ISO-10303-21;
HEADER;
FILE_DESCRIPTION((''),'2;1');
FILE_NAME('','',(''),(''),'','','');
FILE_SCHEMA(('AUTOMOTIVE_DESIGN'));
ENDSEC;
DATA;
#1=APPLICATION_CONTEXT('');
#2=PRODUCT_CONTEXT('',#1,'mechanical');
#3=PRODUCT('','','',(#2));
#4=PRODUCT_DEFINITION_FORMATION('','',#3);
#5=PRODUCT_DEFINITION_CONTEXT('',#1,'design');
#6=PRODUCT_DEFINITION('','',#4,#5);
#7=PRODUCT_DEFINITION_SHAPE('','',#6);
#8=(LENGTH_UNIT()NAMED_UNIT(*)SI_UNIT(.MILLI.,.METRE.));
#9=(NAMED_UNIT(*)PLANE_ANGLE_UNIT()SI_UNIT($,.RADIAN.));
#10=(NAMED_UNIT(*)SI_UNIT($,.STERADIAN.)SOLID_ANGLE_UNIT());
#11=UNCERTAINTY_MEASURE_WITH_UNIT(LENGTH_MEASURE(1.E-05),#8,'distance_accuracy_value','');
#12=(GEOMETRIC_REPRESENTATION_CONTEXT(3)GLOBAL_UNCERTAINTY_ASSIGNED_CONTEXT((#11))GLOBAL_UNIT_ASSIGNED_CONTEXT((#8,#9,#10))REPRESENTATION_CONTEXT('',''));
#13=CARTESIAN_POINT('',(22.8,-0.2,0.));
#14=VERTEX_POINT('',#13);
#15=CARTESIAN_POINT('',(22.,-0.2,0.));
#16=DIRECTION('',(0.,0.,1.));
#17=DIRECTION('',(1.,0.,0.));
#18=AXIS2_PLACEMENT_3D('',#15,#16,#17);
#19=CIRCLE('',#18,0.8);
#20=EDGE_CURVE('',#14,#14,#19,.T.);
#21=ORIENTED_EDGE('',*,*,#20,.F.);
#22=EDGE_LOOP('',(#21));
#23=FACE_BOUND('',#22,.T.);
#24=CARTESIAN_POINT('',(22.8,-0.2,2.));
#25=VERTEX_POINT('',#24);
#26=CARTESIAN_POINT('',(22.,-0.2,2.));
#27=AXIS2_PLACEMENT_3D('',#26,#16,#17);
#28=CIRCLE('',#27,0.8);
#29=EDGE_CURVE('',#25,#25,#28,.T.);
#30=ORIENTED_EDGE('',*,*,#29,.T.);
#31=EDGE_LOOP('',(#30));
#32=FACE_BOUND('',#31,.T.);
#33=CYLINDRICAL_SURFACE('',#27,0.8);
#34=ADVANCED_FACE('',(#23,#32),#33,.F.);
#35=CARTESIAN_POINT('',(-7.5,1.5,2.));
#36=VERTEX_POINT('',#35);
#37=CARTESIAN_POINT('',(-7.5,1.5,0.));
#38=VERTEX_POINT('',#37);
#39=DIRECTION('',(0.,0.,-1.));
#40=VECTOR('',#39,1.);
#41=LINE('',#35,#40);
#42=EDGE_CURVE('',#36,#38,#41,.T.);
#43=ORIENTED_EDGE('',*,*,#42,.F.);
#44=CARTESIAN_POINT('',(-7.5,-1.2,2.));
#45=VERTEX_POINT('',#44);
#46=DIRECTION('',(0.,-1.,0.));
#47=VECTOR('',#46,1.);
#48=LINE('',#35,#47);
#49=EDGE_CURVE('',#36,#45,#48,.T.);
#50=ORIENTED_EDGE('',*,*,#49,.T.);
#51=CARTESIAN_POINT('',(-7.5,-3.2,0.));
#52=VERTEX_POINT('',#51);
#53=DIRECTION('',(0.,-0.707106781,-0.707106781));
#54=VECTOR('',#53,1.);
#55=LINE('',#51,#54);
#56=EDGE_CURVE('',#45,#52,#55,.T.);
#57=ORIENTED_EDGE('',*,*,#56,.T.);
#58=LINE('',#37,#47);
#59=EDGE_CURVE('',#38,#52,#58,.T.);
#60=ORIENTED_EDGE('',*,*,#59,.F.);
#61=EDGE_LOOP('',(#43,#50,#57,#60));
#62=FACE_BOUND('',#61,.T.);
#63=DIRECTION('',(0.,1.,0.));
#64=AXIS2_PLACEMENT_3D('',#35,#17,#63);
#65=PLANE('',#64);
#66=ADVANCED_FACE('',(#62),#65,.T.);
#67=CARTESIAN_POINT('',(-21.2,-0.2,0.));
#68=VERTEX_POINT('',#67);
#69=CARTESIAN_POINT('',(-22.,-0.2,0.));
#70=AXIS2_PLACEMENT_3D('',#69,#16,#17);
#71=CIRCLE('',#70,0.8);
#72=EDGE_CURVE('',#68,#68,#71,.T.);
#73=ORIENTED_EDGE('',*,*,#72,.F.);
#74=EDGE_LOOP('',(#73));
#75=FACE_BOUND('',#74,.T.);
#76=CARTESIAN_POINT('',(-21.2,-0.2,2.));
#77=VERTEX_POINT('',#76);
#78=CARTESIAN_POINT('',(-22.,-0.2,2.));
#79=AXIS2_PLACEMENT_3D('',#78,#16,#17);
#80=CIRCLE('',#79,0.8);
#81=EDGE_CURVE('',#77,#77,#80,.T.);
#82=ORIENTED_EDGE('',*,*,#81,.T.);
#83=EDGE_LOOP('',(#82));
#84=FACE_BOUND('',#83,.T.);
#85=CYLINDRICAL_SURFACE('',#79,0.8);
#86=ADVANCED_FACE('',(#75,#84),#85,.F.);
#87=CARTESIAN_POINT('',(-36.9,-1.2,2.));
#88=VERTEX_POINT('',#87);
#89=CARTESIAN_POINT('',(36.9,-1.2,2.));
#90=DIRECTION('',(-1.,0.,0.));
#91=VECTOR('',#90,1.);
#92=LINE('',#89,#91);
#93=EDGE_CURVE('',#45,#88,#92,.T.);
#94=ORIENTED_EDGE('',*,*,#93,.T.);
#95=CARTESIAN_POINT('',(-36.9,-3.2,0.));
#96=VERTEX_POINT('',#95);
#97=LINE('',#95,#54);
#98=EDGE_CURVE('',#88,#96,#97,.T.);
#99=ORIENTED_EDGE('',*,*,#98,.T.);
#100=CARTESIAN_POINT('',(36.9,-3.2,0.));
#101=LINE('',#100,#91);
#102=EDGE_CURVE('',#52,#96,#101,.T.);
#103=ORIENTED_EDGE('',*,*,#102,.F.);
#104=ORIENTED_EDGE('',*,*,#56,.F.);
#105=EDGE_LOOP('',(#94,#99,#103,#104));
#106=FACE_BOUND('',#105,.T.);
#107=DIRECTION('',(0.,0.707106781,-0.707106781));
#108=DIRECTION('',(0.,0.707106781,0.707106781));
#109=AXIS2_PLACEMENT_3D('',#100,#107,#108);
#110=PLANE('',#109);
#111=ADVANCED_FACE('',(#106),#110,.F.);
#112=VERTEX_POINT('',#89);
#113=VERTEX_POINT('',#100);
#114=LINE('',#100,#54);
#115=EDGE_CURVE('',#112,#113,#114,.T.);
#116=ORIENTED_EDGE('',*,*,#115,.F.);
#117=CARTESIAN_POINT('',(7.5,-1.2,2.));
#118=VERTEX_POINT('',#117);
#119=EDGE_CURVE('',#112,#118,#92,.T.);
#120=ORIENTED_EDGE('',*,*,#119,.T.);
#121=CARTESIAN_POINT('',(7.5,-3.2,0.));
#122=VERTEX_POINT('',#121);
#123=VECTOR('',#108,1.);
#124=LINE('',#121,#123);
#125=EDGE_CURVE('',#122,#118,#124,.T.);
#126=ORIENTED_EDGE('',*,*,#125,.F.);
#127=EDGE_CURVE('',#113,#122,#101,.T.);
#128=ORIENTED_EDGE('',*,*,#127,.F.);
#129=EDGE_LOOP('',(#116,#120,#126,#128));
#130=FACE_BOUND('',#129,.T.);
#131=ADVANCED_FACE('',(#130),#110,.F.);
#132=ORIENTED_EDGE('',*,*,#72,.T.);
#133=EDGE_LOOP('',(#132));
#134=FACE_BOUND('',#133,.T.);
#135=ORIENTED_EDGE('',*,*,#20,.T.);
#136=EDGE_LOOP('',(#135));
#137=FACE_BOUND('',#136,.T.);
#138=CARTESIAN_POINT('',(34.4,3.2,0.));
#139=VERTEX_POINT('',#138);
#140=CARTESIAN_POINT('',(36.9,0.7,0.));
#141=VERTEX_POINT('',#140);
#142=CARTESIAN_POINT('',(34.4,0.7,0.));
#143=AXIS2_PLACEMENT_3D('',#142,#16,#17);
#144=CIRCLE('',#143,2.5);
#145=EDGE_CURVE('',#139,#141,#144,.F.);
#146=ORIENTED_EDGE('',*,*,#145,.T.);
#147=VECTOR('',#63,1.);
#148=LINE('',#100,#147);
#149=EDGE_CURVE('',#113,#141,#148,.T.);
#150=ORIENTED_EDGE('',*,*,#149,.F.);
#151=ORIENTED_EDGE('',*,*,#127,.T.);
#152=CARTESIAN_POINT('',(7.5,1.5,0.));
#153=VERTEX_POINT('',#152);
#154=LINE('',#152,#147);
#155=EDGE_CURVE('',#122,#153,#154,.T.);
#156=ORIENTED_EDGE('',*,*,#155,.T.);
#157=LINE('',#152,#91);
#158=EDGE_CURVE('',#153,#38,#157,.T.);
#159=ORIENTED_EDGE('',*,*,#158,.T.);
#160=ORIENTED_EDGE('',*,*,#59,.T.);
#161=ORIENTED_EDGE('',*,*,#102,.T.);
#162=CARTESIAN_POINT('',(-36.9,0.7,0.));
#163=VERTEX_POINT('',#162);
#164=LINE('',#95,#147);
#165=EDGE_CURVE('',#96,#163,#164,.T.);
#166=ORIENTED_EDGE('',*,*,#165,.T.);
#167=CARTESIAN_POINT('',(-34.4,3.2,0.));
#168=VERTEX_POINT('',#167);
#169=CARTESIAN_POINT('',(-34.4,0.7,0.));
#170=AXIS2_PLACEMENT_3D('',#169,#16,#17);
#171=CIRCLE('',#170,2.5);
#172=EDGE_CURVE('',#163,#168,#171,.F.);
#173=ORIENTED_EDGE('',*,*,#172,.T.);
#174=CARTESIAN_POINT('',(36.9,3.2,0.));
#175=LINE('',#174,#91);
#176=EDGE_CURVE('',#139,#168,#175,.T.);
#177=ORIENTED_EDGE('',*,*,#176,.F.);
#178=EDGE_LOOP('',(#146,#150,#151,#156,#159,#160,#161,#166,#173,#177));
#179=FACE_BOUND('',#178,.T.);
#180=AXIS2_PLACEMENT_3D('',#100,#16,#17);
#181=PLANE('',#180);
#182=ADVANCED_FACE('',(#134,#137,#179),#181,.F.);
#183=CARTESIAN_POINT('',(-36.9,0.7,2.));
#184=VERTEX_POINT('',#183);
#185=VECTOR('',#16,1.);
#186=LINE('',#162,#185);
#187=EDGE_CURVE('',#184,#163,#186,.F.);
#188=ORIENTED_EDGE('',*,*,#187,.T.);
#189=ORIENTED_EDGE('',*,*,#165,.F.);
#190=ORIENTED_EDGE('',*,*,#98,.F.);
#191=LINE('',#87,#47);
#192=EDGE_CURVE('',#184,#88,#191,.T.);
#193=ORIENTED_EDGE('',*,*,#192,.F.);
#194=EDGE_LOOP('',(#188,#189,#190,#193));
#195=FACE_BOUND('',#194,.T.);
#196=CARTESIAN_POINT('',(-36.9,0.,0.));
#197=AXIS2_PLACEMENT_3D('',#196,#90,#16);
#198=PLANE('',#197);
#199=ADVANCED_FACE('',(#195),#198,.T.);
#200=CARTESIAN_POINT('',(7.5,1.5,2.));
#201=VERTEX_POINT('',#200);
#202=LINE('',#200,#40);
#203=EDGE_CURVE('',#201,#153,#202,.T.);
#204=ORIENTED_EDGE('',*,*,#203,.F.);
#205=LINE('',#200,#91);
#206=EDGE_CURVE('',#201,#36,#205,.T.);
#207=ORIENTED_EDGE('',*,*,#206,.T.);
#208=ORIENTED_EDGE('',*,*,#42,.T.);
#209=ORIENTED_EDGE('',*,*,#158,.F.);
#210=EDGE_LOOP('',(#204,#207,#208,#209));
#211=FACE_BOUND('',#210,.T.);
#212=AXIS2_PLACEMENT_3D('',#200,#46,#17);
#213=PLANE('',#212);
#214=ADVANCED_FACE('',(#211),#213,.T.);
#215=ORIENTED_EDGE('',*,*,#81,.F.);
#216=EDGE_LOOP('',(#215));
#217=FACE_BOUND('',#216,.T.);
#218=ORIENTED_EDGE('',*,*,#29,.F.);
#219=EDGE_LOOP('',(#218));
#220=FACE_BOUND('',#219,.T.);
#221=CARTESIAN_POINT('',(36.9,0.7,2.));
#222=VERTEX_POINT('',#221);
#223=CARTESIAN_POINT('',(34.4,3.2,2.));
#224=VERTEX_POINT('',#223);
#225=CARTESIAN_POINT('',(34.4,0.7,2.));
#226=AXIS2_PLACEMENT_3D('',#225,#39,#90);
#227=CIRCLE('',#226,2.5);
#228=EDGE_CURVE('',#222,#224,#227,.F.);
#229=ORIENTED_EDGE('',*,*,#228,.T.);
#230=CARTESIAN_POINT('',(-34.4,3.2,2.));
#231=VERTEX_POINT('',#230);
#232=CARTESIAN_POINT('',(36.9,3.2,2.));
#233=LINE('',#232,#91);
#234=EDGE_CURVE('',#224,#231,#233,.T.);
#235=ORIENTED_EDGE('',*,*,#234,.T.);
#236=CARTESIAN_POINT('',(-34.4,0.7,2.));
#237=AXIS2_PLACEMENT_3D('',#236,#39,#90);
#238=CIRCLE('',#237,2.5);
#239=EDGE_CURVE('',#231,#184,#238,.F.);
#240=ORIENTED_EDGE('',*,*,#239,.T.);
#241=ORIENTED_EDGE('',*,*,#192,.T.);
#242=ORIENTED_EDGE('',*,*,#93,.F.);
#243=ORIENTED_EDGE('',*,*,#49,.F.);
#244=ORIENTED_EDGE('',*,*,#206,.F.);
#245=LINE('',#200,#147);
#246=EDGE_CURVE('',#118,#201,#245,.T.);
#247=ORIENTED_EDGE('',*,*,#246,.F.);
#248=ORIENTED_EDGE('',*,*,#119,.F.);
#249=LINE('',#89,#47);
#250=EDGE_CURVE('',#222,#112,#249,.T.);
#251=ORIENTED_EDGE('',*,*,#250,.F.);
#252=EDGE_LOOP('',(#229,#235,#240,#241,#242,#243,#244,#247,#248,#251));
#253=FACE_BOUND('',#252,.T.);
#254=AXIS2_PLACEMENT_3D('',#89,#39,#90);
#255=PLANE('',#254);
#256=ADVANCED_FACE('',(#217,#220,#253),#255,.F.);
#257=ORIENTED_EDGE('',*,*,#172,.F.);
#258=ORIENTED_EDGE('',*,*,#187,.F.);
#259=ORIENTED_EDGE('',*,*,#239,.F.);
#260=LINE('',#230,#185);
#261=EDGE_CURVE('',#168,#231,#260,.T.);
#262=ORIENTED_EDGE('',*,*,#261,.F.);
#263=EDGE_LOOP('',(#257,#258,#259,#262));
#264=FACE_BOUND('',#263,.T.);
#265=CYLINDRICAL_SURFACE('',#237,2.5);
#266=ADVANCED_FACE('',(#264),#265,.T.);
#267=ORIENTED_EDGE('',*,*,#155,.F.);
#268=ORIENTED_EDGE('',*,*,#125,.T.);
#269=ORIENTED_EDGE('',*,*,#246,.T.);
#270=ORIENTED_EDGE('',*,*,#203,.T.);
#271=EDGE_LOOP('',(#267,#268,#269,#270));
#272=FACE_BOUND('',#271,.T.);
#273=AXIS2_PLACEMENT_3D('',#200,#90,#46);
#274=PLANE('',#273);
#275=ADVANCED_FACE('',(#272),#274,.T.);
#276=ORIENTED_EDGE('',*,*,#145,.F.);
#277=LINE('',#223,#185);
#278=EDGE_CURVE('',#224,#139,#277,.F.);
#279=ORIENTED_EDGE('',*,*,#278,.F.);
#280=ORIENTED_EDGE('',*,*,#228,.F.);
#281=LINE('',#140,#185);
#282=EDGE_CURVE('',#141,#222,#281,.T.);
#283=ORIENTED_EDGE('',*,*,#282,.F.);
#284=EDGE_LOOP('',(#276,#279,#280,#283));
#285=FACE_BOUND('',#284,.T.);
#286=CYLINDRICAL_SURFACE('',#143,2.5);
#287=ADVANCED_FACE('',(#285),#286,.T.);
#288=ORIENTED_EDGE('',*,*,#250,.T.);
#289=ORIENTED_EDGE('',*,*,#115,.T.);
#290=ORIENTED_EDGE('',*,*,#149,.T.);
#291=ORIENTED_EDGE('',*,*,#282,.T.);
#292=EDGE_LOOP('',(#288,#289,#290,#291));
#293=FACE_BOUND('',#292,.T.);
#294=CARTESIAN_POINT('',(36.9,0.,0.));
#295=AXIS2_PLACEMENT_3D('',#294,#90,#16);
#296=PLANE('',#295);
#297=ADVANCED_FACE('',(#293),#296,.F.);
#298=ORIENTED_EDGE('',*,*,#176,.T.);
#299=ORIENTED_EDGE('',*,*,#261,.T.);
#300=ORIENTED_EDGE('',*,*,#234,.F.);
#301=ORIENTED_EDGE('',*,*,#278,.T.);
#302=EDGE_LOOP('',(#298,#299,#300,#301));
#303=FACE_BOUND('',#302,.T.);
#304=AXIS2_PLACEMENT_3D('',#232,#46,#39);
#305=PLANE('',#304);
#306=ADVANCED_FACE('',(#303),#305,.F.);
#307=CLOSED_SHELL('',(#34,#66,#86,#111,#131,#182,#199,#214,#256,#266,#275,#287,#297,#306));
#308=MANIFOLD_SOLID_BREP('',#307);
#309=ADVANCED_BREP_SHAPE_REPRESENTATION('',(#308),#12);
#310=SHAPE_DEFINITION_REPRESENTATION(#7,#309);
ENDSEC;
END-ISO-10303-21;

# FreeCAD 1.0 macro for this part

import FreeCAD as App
import Part
import Sketcher
Q = App.Units.Quantity


def edges_at(feature, points):
    """Names of the edges that pass closest to the given points."""
    edges = feature.Shape.Edges
    near = lambda p: min(range(len(edges)), key=lambda i: edges[i].distToShape(Part.Vertex(*p))[0])
    return sorted({f"Edge{near(p) + 1}" for p in points})

doc = App.newDocument("Part")
body = doc.addObject("PartDesign::Body", "Body")

# Sketch on YZ plane
sketch1 = body.newObject("Sketcher::SketchObject", "Sketch")
sketch1.AttachmentSupport = (doc.getObject("YZ_Plane"), [""])
sketch1.MapMode = "FlatFace"
sketch1.addGeometry(Part.LineSegment(App.Vector(-1.2, 2, 0), App.Vector(-3.2, 0, 0)), False)
sketch1.addGeometry(Part.LineSegment(App.Vector(-3.2, 0, 0), App.Vector(3.2, 0, 0)), False)
sketch1.addGeometry(Part.LineSegment(App.Vector(3.2, 0, 0), App.Vector(3.2, 2, 0)), False)
sketch1.addGeometry(Part.LineSegment(App.Vector(3.2, 2, 0), App.Vector(-1.2, 2, 0)), False)
sketch1.addConstraint(Sketcher.Constraint("Coincident", 0, 2, 1, 1))
sketch1.addConstraint(Sketcher.Constraint("Coincident", 1, 2, 2, 1))
sketch1.addConstraint(Sketcher.Constraint("Coincident", 2, 2, 3, 1))
sketch1.addConstraint(Sketcher.Constraint("Coincident", 3, 2, 0, 1))
sketch1.addConstraint(Sketcher.Constraint("Horizontal", 1))
sketch1.addConstraint(Sketcher.Constraint("Vertical", 2))
sketch1.addConstraint(Sketcher.Constraint("Horizontal", 3))
sketch1.addConstraint(Sketcher.Constraint("Symmetric", 0, 2, 1, 2, -1, 1))
sketch1.addConstraint(Sketcher.Constraint("DistanceY", 2, 1, 2, 2, 2.0))
sketch1.addConstraint(Sketcher.Constraint("Angle", 0, Q("-135 deg")))
sketch1.addConstraint(Sketcher.Constraint("DistanceX", 1, 1, 1, 2, 6.4))
pad1 = body.newObject("PartDesign::Pad", "Pad")
pad1.Profile = sketch1
pad1.Length = 73.8
pad1.Midplane = True

# Sketch on XY plane
sketch2 = body.newObject("Sketcher::SketchObject", "Sketch001")
sketch2.AttachmentSupport = (doc.getObject("XY_Plane"), [""])
sketch2.MapMode = "FlatFace"
sketch2.AttachmentOffset = App.Placement(App.Vector(0, 0, 2), App.Rotation())
sketch2.addGeometry(Part.Circle(App.Vector(22, -0.2, 0), App.Vector(0, 0, 1), 0.8), False)
sketch2.addGeometry(Part.Circle(App.Vector(0, -0.2, 0), App.Vector(0, 0, 1), 0.8), False)
sketch2.addGeometry(Part.Circle(App.Vector(-22, -0.2, 0), App.Vector(0, 0, 1), 0.8), False)
sketch2.addConstraint(Sketcher.Constraint("Equal", 0, 1))
sketch2.addConstraint(Sketcher.Constraint("Equal", 1, 2))
sketch2.addConstraint(Sketcher.Constraint("Symmetric", 0, 3, 2, 3, -2))
sketch2.addConstraint(Sketcher.Constraint("PointOnObject", 1, 3, -2))
sketch2.addConstraint(Sketcher.Constraint("Horizontal", 0, 3, 1, 3))
sketch2.addConstraint(Sketcher.Constraint("Diameter", 0, 1.6))
sketch2.addConstraint(Sketcher.Constraint("DistanceX", -1, 1, 0, 3, 22.0))
sketch2.addConstraint(Sketcher.Constraint("DistanceY", 0, 3, -1, 1, 0.2))
doc.recompute()
hole = body.newObject("PartDesign::Hole", "Hole")
hole.Profile = sketch2
hole.ThreadType = "None"
hole.Diameter = 1.6
hole.DepthType = "ThroughAll"

# Sketch on XY plane
sketch3 = body.newObject("Sketcher::SketchObject", "Sketch002")
sketch3.AttachmentSupport = (doc.getObject("XY_Plane"), [""])
sketch3.MapMode = "FlatFace"
sketch3.addGeometry(Part.LineSegment(App.Vector(-7.5, 1.5, 0), App.Vector(-7.5, -3.2, 0)), False)
sketch3.addGeometry(Part.LineSegment(App.Vector(-7.5, -3.2, 0), App.Vector(7.5, -3.2, 0)), False)
sketch3.addGeometry(Part.LineSegment(App.Vector(7.5, -3.2, 0), App.Vector(7.5, 1.5, 0)), False)
sketch3.addGeometry(Part.LineSegment(App.Vector(7.5, 1.5, 0), App.Vector(-7.5, 1.5, 0)), False)
sketch3.addConstraint(Sketcher.Constraint("Coincident", 0, 2, 1, 1))
sketch3.addConstraint(Sketcher.Constraint("Coincident", 1, 2, 2, 1))
sketch3.addConstraint(Sketcher.Constraint("Coincident", 2, 2, 3, 1))
sketch3.addConstraint(Sketcher.Constraint("Coincident", 3, 2, 0, 1))
sketch3.addConstraint(Sketcher.Constraint("Vertical", 0))
sketch3.addConstraint(Sketcher.Constraint("Horizontal", 1))
sketch3.addConstraint(Sketcher.Constraint("Vertical", 2))
sketch3.addConstraint(Sketcher.Constraint("Horizontal", 3))
sketch3.addConstraint(Sketcher.Constraint("DistanceX", 1, 1, 1, 2, 15.0))
sketch3.addConstraint(Sketcher.Constraint("DistanceY", 0, 2, 0, 1, 4.7))
sketch3.addConstraint(Sketcher.Constraint("DistanceX", 0, 2, -1, 1, 7.5))
sketch3.addConstraint(Sketcher.Constraint("DistanceY", 0, 2, -1, 1, 3.2))
pocket1 = body.newObject("PartDesign::Pocket", "Pocket")
pocket1.Profile = sketch3
pocket1.Type = "ThroughAll"
pocket1.Reversed = True
doc.recompute()

fillet = body.newObject("PartDesign::Fillet", "Fillet")
fillet.Base = (pocket1, edges_at(pocket1, [(-36.9, 3.2, 1), (36.9, 3.2, 1)]))
fillet.Radius = 2.5

doc.recompute()
